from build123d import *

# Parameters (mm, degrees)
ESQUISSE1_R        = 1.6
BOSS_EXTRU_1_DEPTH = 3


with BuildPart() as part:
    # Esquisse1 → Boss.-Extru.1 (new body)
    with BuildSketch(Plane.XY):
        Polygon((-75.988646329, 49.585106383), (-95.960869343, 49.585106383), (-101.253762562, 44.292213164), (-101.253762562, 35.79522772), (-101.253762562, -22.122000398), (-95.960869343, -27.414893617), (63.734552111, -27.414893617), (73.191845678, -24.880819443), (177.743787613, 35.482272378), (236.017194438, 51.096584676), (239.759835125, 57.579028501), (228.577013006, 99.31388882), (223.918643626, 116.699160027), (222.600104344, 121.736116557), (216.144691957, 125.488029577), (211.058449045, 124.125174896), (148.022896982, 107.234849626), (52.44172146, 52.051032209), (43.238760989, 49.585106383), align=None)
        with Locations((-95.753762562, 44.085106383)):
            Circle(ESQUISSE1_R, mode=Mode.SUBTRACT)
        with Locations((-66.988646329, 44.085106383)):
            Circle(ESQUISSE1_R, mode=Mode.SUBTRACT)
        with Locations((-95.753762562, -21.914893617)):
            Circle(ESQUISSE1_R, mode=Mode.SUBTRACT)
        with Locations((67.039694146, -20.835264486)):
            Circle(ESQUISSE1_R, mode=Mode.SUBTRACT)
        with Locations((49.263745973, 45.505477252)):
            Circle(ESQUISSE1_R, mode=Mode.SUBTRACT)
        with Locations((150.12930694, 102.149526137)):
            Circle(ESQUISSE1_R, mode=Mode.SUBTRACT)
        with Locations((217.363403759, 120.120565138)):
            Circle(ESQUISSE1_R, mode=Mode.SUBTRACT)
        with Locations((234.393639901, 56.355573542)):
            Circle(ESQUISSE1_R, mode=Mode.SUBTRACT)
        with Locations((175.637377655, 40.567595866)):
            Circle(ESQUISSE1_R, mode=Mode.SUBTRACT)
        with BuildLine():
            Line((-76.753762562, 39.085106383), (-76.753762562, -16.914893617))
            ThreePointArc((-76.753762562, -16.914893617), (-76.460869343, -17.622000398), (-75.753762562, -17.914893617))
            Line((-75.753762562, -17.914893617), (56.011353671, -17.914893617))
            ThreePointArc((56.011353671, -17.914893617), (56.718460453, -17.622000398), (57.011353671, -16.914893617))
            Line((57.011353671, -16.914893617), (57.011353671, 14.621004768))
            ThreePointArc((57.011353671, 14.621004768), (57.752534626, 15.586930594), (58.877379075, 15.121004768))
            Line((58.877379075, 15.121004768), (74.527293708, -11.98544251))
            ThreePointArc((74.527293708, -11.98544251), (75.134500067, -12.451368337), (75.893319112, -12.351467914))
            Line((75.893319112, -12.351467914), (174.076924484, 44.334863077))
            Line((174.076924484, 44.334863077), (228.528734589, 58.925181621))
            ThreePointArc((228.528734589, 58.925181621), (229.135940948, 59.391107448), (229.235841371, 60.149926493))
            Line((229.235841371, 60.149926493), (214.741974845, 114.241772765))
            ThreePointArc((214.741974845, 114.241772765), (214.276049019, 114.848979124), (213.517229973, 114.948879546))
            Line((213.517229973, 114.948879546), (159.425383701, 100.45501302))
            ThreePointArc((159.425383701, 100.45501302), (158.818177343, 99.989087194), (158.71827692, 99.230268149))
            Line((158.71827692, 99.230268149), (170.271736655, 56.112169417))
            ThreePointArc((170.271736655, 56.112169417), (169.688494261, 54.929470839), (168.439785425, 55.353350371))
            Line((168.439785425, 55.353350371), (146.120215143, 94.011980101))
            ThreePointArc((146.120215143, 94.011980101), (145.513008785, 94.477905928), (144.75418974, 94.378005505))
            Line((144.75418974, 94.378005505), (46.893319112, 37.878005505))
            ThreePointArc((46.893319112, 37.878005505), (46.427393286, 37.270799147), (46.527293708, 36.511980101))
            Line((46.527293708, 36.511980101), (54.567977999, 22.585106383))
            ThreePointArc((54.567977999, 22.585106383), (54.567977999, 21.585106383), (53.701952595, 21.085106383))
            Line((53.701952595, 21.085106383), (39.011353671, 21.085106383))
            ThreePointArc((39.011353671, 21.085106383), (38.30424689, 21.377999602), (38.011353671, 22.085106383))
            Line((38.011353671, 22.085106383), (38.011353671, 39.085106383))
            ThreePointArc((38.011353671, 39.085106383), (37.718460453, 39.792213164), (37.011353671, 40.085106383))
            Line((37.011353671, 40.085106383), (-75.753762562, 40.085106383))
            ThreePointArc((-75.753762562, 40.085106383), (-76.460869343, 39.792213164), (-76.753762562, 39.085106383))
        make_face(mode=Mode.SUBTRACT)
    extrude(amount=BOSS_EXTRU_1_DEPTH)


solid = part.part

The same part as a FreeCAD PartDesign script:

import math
import FreeCAD as App
import Part
import Sketcher

V = App.Vector
Q = App.Units.Quantity

doc = App.newDocument("Part")
body = doc.addObject("PartDesign::Body", "Body")

sketch1 = doc.addObject("Sketcher::SketchObject", "Sketch")
body.addObject(sketch1)
sketch1.AttachmentSupport = (doc.XY_Plane, [""])
sketch1.MapMode = "FlatFace"
sketch1.addGeometry([
    Part.LineSegment(V(-96, 49.6, 0), V(-101.3, 44.3, 0)),
    Part.LineSegment(V(-101.3, 44.3, 0), V(-101.3, -22.1, 0)),
    Part.LineSegment(V(-101.3, -22.1, 0), V(-96, -27.4, 0)),
    Part.LineSegment(V(-96, -27.4, 0), V(63.7, -27.4, 0)),
    Part.LineSegment(V(63.7, -27.4, 0), V(73.2, -24.9, 0)),
    Part.LineSegment(V(73.2, -24.9, 0), V(177.7, 35.5, 0)),
    Part.LineSegment(V(177.7, 35.5, 0), V(236, 51.1, 0)),
    Part.LineSegment(V(236, 51.1, 0), V(239.8, 57.6, 0)),
    Part.LineSegment(V(239.8, 57.6, 0), V(228.6, 99.3, 0)),
    Part.LineSegment(V(228.6, 99.3, 0), V(223.9, 116.7, 0)),
    Part.LineSegment(V(223.9, 116.7, 0), V(222.6, 121.7, 0)),
    Part.LineSegment(V(222.6, 121.7, 0), V(216.1, 125.5, 0)),
    Part.LineSegment(V(216.1, 125.5, 0), V(211.1, 124.1, 0)),
    Part.LineSegment(V(211.1, 124.1, 0), V(148, 107.2, 0)),
    Part.LineSegment(V(148, 107.2, 0), V(52.4, 52.1, 0)),
    Part.LineSegment(V(52.4, 52.1, 0), V(43.2, 49.6, 0)),
    Part.LineSegment(V(43.2, 49.6, 0), V(-96, 49.6, 0)),
    Part.Circle(V(-95.8, -21.9, 0), V(0, 0, 1), 1.6),
    Part.Circle(V(67, -20.8, 0), V(0, 0, 1), 1.6),
    Part.Circle(V(-95.8, 44.1, 0), V(0, 0, 1), 1.6),
    Part.Circle(V(-67, 44.1, 0), V(0, 0, 1), 1.6),
    Part.Circle(V(49.3, 45.5, 0), V(0, 0, 1), 1.6),
    Part.LineSegment(V(-76.8, -16.9, 0), V(-76.8, 39.1, 0)),
    Part.ArcOfCircle(Part.Circle(V(-75.8, 39.1, 0), V(0, 0, 1), 1), math.radians(90), math.radians(180)),
    Part.LineSegment(V(-75.8, 40.1, 0), V(37, 40.1, 0)),
    Part.ArcOfCircle(Part.Circle(V(37, 39.1, 0), V(0, 0, 1), 1), math.radians(0), math.radians(90)),
    Part.LineSegment(V(38, 39.1, 0), V(38, 22.1, 0)),
    Part.ArcOfCircle(Part.Circle(V(39, 22.1, 0), V(0, 0, 1), 1), math.radians(-180), math.radians(-90)),
    Part.LineSegment(V(39, 21.1, 0), V(53.7, 21.1, 0)),
    Part.ArcOfCircle(Part.Circle(V(53.7, 22.1, 0), V(0, 0, 1), 1), math.radians(-90), math.radians(30)),
    Part.LineSegment(V(54.6, 22.6, 0), V(46.5, 36.5, 0)),
    Part.ArcOfCircle(Part.Circle(V(47.4, 37, 0), V(0, 0, 1), 1), math.radians(120), math.radians(210)),
    Part.LineSegment(V(46.9, 37.9, 0), V(144.8, 94.4, 0)),
    Part.ArcOfCircle(Part.Circle(V(145.3, 93.5, 0), V(0, 0, 1), 1), math.radians(30), math.radians(120)),
    Part.LineSegment(V(146.1, 94, 0), V(168.4, 55.4, 0)),
    Part.ArcOfCircle(Part.Circle(V(169.3, 55.9, 0), V(0, 0, 1), 1), math.radians(-150), math.radians(15)),
    Part.LineSegment(V(170.3, 56.1, 0), V(158.7, 99.2, 0)),
    Part.ArcOfCircle(Part.Circle(V(159.7, 99.5, 0), V(0, 0, 1), 1), math.radians(105), math.radians(195)),
    Part.LineSegment(V(159.4, 100.5, 0), V(213.5, 114.9, 0)),
    Part.ArcOfCircle(Part.Circle(V(213.8, 114, 0), V(0, 0, 1), 1), math.radians(15), math.radians(105)),
    Part.LineSegment(V(214.7, 114.2, 0), V(229.2, 60.1, 0)),
    Part.ArcOfCircle(Part.Circle(V(228.3, 59.9, 0), V(0, 0, 1), 1), math.radians(-75), math.radians(15)),
    Part.LineSegment(V(228.5, 58.9, 0), V(174.1, 44.3, 0)),
    Part.LineSegment(V(174.1, 44.3, 0), V(75.9, -12.4, 0)),
    Part.ArcOfCircle(Part.Circle(V(75.4, -11.5, 0), V(0, 0, 1), 1), math.radians(-150), math.radians(-60)),
    Part.LineSegment(V(74.5, -12, 0), V(58.9, 15.1, 0)),
    Part.ArcOfCircle(Part.Circle(V(58, 14.6, 0), V(0, 0, 1), 1), math.radians(30), math.radians(180)),
    Part.LineSegment(V(57, 14.6, 0), V(57, -16.9, 0)),
    Part.ArcOfCircle(Part.Circle(V(56, -16.9, 0), V(0, 0, 1), 1), math.radians(-90), math.radians(0)),
    Part.LineSegment(V(56, -17.9, 0), V(-75.8, -17.9, 0)),
    Part.ArcOfCircle(Part.Circle(V(-75.8, -16.9, 0), V(0, 0, 1), 1), math.radians(-180), math.radians(-90)),
    Part.Circle(V(175.6, 40.6, 0), V(0, 0, 1), 1.6),
    Part.Circle(V(234.4, 56.4, 0), V(0, 0, 1), 1.6),
    Part.Circle(V(150.1, 102.1, 0), V(0, 0, 1), 1.6),
    Part.Circle(V(217.4, 120.1, 0), V(0, 0, 1), 1.6),
], False)
sketch1.addConstraint([
    Sketcher.Constraint("Coincident", 0, 2, 1, 1),
    Sketcher.Constraint("Coincident", 1, 2, 2, 1),
    Sketcher.Constraint("Coincident", 2, 2, 3, 1),
    Sketcher.Constraint("Coincident", 3, 2, 4, 1),
    Sketcher.Constraint("Coincident", 4, 2, 5, 1),
    Sketcher.Constraint("Coincident", 5, 2, 6, 1),
    Sketcher.Constraint("Coincident", 6, 2, 7, 1),
    Sketcher.Constraint("Coincident", 7, 2, 8, 1),
    Sketcher.Constraint("Coincident", 8, 2, 9, 1),
    Sketcher.Constraint("Coincident", 9, 2, 10, 1),
    Sketcher.Constraint("Coincident", 10, 2, 11, 1),
    Sketcher.Constraint("Coincident", 11, 2, 12, 1),
    Sketcher.Constraint("Coincident", 12, 2, 13, 1),
    Sketcher.Constraint("Coincident", 13, 2, 14, 1),
    Sketcher.Constraint("Coincident", 14, 2, 15, 1),
    Sketcher.Constraint("Coincident", 15, 2, 16, 1),
    Sketcher.Constraint("Coincident", 16, 2, 0, 1),
    Sketcher.Constraint("Tangent", 22, 2, 23, 2),
    Sketcher.Constraint("Tangent", 23, 1, 24, 1),
    Sketcher.Constraint("Tangent", 24, 2, 25, 2),
    Sketcher.Constraint("Tangent", 25, 1, 26, 1),
    Sketcher.Constraint("Tangent", 26, 2, 27, 1),
    Sketcher.Constraint("Tangent", 27, 2, 28, 1),
    Sketcher.Constraint("Tangent", 28, 2, 29, 1),
    Sketcher.Constraint("Tangent", 29, 2, 30, 1),
    Sketcher.Constraint("Tangent", 30, 2, 31, 2),
    Sketcher.Constraint("Tangent", 31, 1, 32, 1),
    Sketcher.Constraint("Tangent", 32, 2, 33, 2),
    Sketcher.Constraint("Tangent", 33, 1, 34, 1),
    Sketcher.Constraint("Tangent", 34, 2, 35, 1),
    Sketcher.Constraint("Tangent", 35, 2, 36, 1),
    Sketcher.Constraint("Tangent", 36, 2, 37, 2),
    Sketcher.Constraint("Tangent", 37, 1, 38, 1),
    Sketcher.Constraint("Tangent", 38, 2, 39, 2),
    Sketcher.Constraint("Tangent", 39, 1, 40, 1),
    Sketcher.Constraint("Tangent", 40, 2, 41, 2),
    Sketcher.Constraint("Tangent", 41, 1, 42, 1),
    Sketcher.Constraint("Coincident", 42, 2, 43, 1),
    Sketcher.Constraint("Tangent", 43, 2, 44, 2),
    Sketcher.Constraint("Tangent", 44, 1, 45, 1),
    Sketcher.Constraint("Tangent", 45, 2, 46, 1),
    Sketcher.Constraint("Tangent", 46, 2, 47, 1),
    Sketcher.Constraint("Tangent", 47, 2, 48, 2),
    Sketcher.Constraint("Tangent", 48, 1, 49, 1),
    Sketcher.Constraint("Tangent", 49, 2, 50, 2),
    Sketcher.Constraint("Tangent", 50, 1, 22, 1),
    Sketcher.Constraint("Vertical", 1),
    Sketcher.Constraint("Horizontal", 3),
    Sketcher.Constraint("Horizontal", 16),
    Sketcher.Constraint("Vertical", 22),
    Sketcher.Constraint("Horizontal", 24),
    Sketcher.Constraint("Vertical", 26),
    Sketcher.Constraint("Horizontal", 28),
    Sketcher.Constraint("Vertical", 47),
    Sketcher.Constraint("Horizontal", 49),
    Sketcher.Constraint("Equal", 17, 18),
    Sketcher.Constraint("Equal", 18, 19),
    Sketcher.Constraint("Equal", 19, 20),
    Sketcher.Constraint("Equal", 20, 21),
    Sketcher.Constraint("Equal", 23, 25),
    Sketcher.Constraint("Equal", 25, 27),
    Sketcher.Constraint("Equal", 27, 29),
    Sketcher.Constraint("Equal", 29, 31),
    Sketcher.Constraint("Equal", 31, 33),
    Sketcher.Constraint("Equal", 33, 35),
    Sketcher.Constraint("Equal", 35, 37),
    Sketcher.Constraint("Equal", 37, 39),
    Sketcher.Constraint("Equal", 39, 41),
    Sketcher.Constraint("Equal", 41, 44),
    Sketcher.Constraint("Equal", 44, 46),
    Sketcher.Constraint("Equal", 46, 48),
    Sketcher.Constraint("Equal", 48, 50),
    Sketcher.Constraint("Equal", 21, 51),
    Sketcher.Constraint("Equal", 51, 52),
    Sketcher.Constraint("Equal", 52, 53),
    Sketcher.Constraint("Equal", 53, 54),
    Sketcher.Constraint("Perpendicular", 0, 2),
    Sketcher.Constraint("Parallel", 4, 6),
    Sketcher.Constraint("Perpendicular", 6, 8),
    Sketcher.Constraint("Parallel", 8, 9),
    Sketcher.Constraint("Perpendicular", 9, 12),
    Sketcher.Constraint("Parallel", 12, 13),
    Sketcher.Constraint("Parallel", 5, 14),
    Sketcher.Constraint("Parallel", 13, 15),
    Sketcher.Constraint("Perpendicular", 14, 30),
    Sketcher.Constraint("Perpendicular", 30, 32),
    Sketcher.Constraint("Perpendicular", 32, 34),
    Sketcher.Constraint("Perpendicular", 15, 36),
    Sketcher.Constraint("Perpendicular", 36, 38),
    Sketcher.Constraint("Perpendicular", 38, 40),
    Sketcher.Constraint("Perpendicular", 40, 42),
    Sketcher.Constraint("Perpendicular", 34, 43),
    Sketcher.Constraint("Perpendicular", 43, 45),
    Sketcher.Constraint("Horizontal", 19, 3, 20, 3),
    Sketcher.Constraint("Vertical", 17, 3, 19, 3),
    Sketcher.Constraint("Vertical", 2, 2, 16, 2),
    Sketcher.Constraint("Equal", 0, 2),
    Sketcher.Constraint("Equal", 2, 7),
    Sketcher.Constraint("Equal", 34, 36),
    Sketcher.Constraint("Equal", 38, 40),
    Sketcher.Constraint("Radius", 23, Q("1 mm")),
    Sketcher.Constraint("Diameter", 17, Q("3.2 mm")),
    Sketcher.Constraint("DistanceY", 22, 1, 22, 2, Q("56 mm")),
    Sketcher.Constraint("DistanceY", 26, 2, 26, 1, Q("17 mm")),
    Sketcher.Constraint("Angle", 4, Q("15 deg")),
    Sketcher.Constraint("Angle", 5, Q("30 deg")),
    Sketcher.Constraint("Angle", 7, Q("60 deg")),
    Sketcher.Constraint("Distance", 32, Q("113 mm")),
    Sketcher.Constraint("Distance", 38, Q("56 mm")),
    Sketcher.Constraint("DistanceX", 28, 1, 28, 2, Q("14.690599 mm")),
    Sketcher.Constraint("DistanceY", 47, 2, 47, 1, Q("31.535898 mm")),
    Sketcher.Constraint("DistanceY", 1, 2, -1, 1, Q("22.122 mm")),
    Sketcher.Constraint("DistanceX", 3, 1, 3, 2, Q("159.695421 mm")),
    Sketcher.Constraint("DistanceX", 16, 2, 16, 1, Q("139.19963 mm")),
    Sketcher.Constraint("Distance", 0, Q("7.485281 mm")),
    Sketcher.Constraint("Distance", 4, Q("9.790911 mm")),
    Sketcher.Constraint("Distance", 6, Q("60.32907 mm")),
    Sketcher.Constraint("Distance", 11, Q("7.466539 mm")),
    Sketcher.Constraint("Distance", 30, Q("16.081369 mm")),
    Sketcher.Constraint("Distance", 34, Q("44.639141 mm")),
    Sketcher.Constraint("Distance", 42, Q("56.372662 mm")),
    Sketcher.Constraint("Distance", 43, Q("113.372662 mm")),
    Sketcher.Constraint("DistanceX", 24, 1, 24, 2, Q("112.765116 mm")),
    Sketcher.Constraint("DistanceY", 1, 2, 1, 1, Q("66.414214 mm")),
    Sketcher.Constraint("DistanceX", -1, 1, 31, 3, Q("47.393319 mm")),
    Sketcher.Constraint("DistanceY", -1, 1, 31, 3, Q("37.01198 mm")),
    Sketcher.Constraint("DistanceX", -1, 1, 52, 3, Q("234.39364 mm")),
    Sketcher.Constraint("DistanceX", 2, 2, -1, 1, Q("95.960869 mm")),
    Sketcher.Constraint("DistanceY", -1, 1, 7, 2, Q("57.579029 mm")),
    Sketcher.Constraint("DistanceY", -1, 1, 8, 2, Q("99.313889 mm")),
    Sketcher.Constraint("DistanceY", -1, 1, 9, 2, Q("116.69916 mm")),
    Sketcher.Constraint("DistanceX", -1, 1, 11, 2, Q("216.144692 mm")),
    Sketcher.Constraint("DistanceY", -1, 1, 11, 2, Q("125.48803 mm")),
    Sketcher.Constraint("DistanceX", -1, 1, 12, 2, Q("211.058449 mm")),
    Sketcher.Constraint("DistanceY", -1, 1, 13, 2, Q("107.23485 mm")),
    Sketcher.Constraint("Distance", 10, Q("5.206676 mm")),
    Sketcher.Constraint("DistanceX", 17, 3, -1, 1, Q("95.753763 mm")),
    Sketcher.Constraint("DistanceY", 17, 3, -1, 1, Q("21.914894 mm")),
    Sketcher.Constraint("DistanceX", -1, 1, 18, 3, Q("67.039694 mm")),
    Sketcher.Constraint("DistanceY", 18, 3, -1, 1, Q("20.835264 mm")),
    Sketcher.Constraint("DistanceY", -1, 1, 19, 3, Q("44.085106 mm")),
    Sketcher.Constraint("DistanceX", 20, 3, -1, 1, Q("66.988646 mm")),
    Sketcher.Constraint("DistanceX", -1, 1, 21, 3, Q("49.263746 mm")),
    Sketcher.Constraint("DistanceY", -1, 1, 21, 3, Q("45.505477 mm")),
    Sketcher.Constraint("DistanceX", -1, 1, 51, 3, Q("175.637378 mm")),
    Sketcher.Constraint("DistanceY", -1, 1, 51, 3, Q("40.567596 mm")),
    Sketcher.Constraint("DistanceY", -1, 1, 52, 3, Q("56.355574 mm")),
    Sketcher.Constraint("DistanceX", -1, 1, 53, 3, Q("150.129307 mm")),
    Sketcher.Constraint("DistanceY", -1, 1, 53, 3, Q("102.149526 mm")),
    Sketcher.Constraint("DistanceX", -1, 1, 54, 3, Q("217.363404 mm")),
    Sketcher.Constraint("DistanceY", -1, 1, 54, 3, Q("120.120565 mm")),
])
pad1 = doc.addObject("PartDesign::Pad", "Pad")
body.addObject(pad1)
pad1.Profile = sketch1
pad1.Length = 3

doc.recompute()
